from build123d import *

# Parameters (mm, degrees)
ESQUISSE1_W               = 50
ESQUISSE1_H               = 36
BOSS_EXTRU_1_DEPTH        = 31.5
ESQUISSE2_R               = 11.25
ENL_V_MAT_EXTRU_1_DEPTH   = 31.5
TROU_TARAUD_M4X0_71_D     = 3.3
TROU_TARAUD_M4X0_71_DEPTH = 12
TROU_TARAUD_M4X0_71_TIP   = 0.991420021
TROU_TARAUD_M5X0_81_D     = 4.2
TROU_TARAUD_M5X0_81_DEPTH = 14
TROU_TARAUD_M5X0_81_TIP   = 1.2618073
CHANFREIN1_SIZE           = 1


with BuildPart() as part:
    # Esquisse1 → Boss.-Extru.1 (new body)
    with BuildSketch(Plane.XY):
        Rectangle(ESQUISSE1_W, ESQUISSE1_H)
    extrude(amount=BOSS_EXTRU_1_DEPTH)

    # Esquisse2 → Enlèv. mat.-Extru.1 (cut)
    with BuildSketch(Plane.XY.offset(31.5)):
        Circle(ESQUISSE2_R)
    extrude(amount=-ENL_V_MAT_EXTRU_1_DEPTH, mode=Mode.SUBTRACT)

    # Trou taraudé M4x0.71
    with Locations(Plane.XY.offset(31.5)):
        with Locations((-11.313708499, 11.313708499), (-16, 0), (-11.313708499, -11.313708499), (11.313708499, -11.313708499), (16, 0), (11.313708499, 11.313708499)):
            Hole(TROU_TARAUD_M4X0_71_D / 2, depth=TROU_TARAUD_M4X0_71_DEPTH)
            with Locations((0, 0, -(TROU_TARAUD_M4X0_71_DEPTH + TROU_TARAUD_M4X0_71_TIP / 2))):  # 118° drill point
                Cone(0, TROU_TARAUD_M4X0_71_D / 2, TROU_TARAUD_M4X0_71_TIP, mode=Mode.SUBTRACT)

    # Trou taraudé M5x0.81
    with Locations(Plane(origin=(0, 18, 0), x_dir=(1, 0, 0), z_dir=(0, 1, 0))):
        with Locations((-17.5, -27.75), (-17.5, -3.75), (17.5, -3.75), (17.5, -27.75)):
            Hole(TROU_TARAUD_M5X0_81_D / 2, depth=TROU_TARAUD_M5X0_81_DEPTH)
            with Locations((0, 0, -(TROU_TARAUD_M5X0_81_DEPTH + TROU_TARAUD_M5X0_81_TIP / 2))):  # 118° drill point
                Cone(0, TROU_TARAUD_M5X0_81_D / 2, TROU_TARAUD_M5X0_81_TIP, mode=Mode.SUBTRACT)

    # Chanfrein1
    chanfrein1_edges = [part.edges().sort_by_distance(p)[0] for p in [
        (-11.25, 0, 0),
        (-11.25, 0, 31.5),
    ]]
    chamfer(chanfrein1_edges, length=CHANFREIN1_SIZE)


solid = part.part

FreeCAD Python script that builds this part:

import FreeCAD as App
import Part
import Sketcher
from FreeCAD import Vector
Q = App.Units.Quantity


def edges_at(feature, points):
    """Names of the edges that pass closest to the given points."""
    edges = feature.Shape.Edges
    near = lambda p: min(range(len(edges)), key=lambda i: edges[i].distToShape(Part.Vertex(*p))[0])
    return sorted({f"Edge{near(p) + 1}" for p in points})

doc = App.newDocument("Part")
body = doc.addObject("PartDesign::Body", "Body")

sketch1 = doc.addObject("Sketcher::SketchObject", "Sketch")
body.addObject(sketch1)
sketch1.AttachmentSupport = (doc.XY_Plane, [""])
sketch1.MapMode = "FlatFace"
sketch1.addGeometry(Part.LineSegment(Vector(-25, 18, 0), Vector(-25, -18, 0)), False)
sketch1.addGeometry(Part.LineSegment(Vector(-25, -18, 0), Vector(25, -18, 0)), False)
sketch1.addGeometry(Part.LineSegment(Vector(25, -18, 0), Vector(25, 18, 0)), False)
sketch1.addGeometry(Part.LineSegment(Vector(25, 18, 0), Vector(-25, 18, 0)), False)
sketch1.addConstraint(Sketcher.Constraint("Coincident", 0, 2, 1, 1))
sketch1.addConstraint(Sketcher.Constraint("Coincident", 1, 2, 2, 1))
sketch1.addConstraint(Sketcher.Constraint("Coincident", 2, 2, 3, 1))
sketch1.addConstraint(Sketcher.Constraint("Coincident", 3, 2, 0, 1))
sketch1.addConstraint(Sketcher.Constraint("Vertical", 0))
sketch1.addConstraint(Sketcher.Constraint("Horizontal", 1))
sketch1.addConstraint(Sketcher.Constraint("Vertical", 2))
sketch1.addConstraint(Sketcher.Constraint("Horizontal", 3))
sketch1.addConstraint(Sketcher.Constraint("Symmetric", 0, 2, 2, 2, -1, 1))
sketch1.addConstraint(Sketcher.Constraint("DistanceX", 1, 1, 1, 2, Q("50 mm")))
sketch1.addConstraint(Sketcher.Constraint("DistanceY", 0, 2, 0, 1, Q("36 mm")))
pad1 = doc.addObject("PartDesign::Pad", "Pad")
body.addObject(pad1)
pad1.Profile = sketch1
pad1.Length = 31.5

sketch2 = doc.addObject("Sketcher::SketchObject", "Sketch001")
body.addObject(sketch2)
sketch2.AttachmentSupport = (doc.XY_Plane, [""])
sketch2.MapMode = "FlatFace"
sketch2.AttachmentOffset = App.Placement(Vector(0, 0, 31.5), App.Rotation())
sketch2.addGeometry(Part.Circle(Vector(0, 0, 0), Vector(0, 0, 1), 11.25), False)
sketch2.addConstraint(Sketcher.Constraint("Coincident", 0, 3, -1, 1))
sketch2.addConstraint(Sketcher.Constraint("Diameter", 0, Q("22.5 mm")))
pocket1 = doc.addObject("PartDesign::Pocket", "Pocket")
body.addObject(pocket1)
pocket1.Profile = sketch2
pocket1.Length = 31.5

sketch3 = doc.addObject("Sketcher::SketchObject", "Sketch002")
body.addObject(sketch3)
sketch3.AttachmentSupport = (doc.XY_Plane, [""])
sketch3.MapMode = "FlatFace"
sketch3.AttachmentOffset = App.Placement(Vector(0, 0, 31.5), App.Rotation())
sketch3.addGeometry(Part.Circle(Vector(-11.313708, 11.313708, 0), Vector(0, 0, 1), 1.65), False)
sketch3.addGeometry(Part.Circle(Vector(-16, 0, 0), Vector(0, 0, 1), 1.65), False)
sketch3.addGeometry(Part.Circle(Vector(-11.313708, -11.313708, 0), Vector(0, 0, 1), 1.65), False)
sketch3.addGeometry(Part.Circle(Vector(11.313708, -11.313708, 0), Vector(0, 0, 1), 1.65), False)
sketch3.addGeometry(Part.Circle(Vector(16, 0, 0), Vector(0, 0, 1), 1.65), False)
sketch3.addGeometry(Part.Circle(Vector(11.313708, 11.313708, 0), Vector(0, 0, 1), 1.65), False)
sketch3.addConstraint(Sketcher.Constraint("Equal", 0, 1))
sketch3.addConstraint(Sketcher.Constraint("Equal", 1, 2))
sketch3.addConstraint(Sketcher.Constraint("Equal", 2, 3))
sketch3.addConstraint(Sketcher.Constraint("Equal", 3, 4))
sketch3.addConstraint(Sketcher.Constraint("Equal", 4, 5))
sketch3.addConstraint(Sketcher.Constraint("Symmetric", 0, 3, 3, 3, -1, 1))
sketch3.addConstraint(Sketcher.Constraint("Symmetric", 1, 3, 4, 3, -1, 1))
sketch3.addConstraint(Sketcher.Constraint("Symmetric", 2, 3, 5, 3, -1, 1))
sketch3.addConstraint(Sketcher.Constraint("Symmetric", 2, 3, 3, 3, -2))
sketch3.addConstraint(Sketcher.Constraint("PointOnObject", 1, 3, -1))
sketch3.addConstraint(Sketcher.Constraint("Diameter", 0, Q("3.3 mm")))
sketch3.addConstraint(Sketcher.Constraint("DistanceX", 1, 3, -1, 1, Q("16 mm")))
sketch3.addConstraint(Sketcher.Constraint("DistanceX", 0, 3, -1, 1, Q("11.313708 mm")))
sketch3.addConstraint(Sketcher.Constraint("DistanceY", -1, 1, 0, 3, Q("11.313708 mm")))
doc.recompute()
hole = doc.addObject("PartDesign::Hole", "Hole")
body.addObject(hole)
hole.Profile = sketch3
hole.ThreadType = "None"
hole.Diameter = 3.3
hole.DepthType = "Dimension"
hole.Depth = 12
hole.DrillPoint = "Angled"
hole.DrillPointAngle = 118

sketch4 = doc.addObject("Sketcher::SketchObject", "Sketch003")
body.addObject(sketch4)
sketch4.AttachmentSupport = (doc.XZ_Plane, [""])
sketch4.MapMode = "FlatFace"
sketch4.AttachmentOffset = App.Placement(Vector(0, 0, -18), App.Rotation())
sketch4.addGeometry(Part.Circle(Vector(-17.5, 27.75, 0), Vector(0, 0, 1), 2.1), False)
sketch4.addGeometry(Part.Circle(Vector(-17.5, 3.75, 0), Vector(0, 0, 1), 2.1), False)
sketch4.addGeometry(Part.Circle(Vector(17.5, 3.75, 0), Vector(0, 0, 1), 2.1), False)
sketch4.addGeometry(Part.Circle(Vector(17.5, 27.75, 0), Vector(0, 0, 1), 2.1), False)
sketch4.addConstraint(Sketcher.Constraint("Equal", 0, 1))
sketch4.addConstraint(Sketcher.Constraint("Equal", 1, 2))
sketch4.addConstraint(Sketcher.Constraint("Equal", 2, 3))
sketch4.addConstraint(Sketcher.Constraint("Symmetric", 1, 3, 2, 3, -2))
sketch4.addConstraint(Sketcher.Constraint("Symmetric", 0, 3, 3, 3, -2))
sketch4.addConstraint(Sketcher.Constraint("Vertical", 0, 3, 1, 3))
sketch4.addConstraint(Sketcher.Constraint("Diameter", 0, Q("4.2 mm")))
sketch4.addConstraint(Sketcher.Constraint("DistanceY", 1, 3, 0, 3, Q("24 mm")))
sketch4.addConstraint(Sketcher.Constraint("DistanceX", 1, 3, 2, 3, Q("35 mm")))
sketch4.addConstraint(Sketcher.Constraint("DistanceY", -1, 1, 0, 3, Q("27.75 mm")))
doc.recompute()
hole2 = doc.addObject("PartDesign::Hole", "Hole001")
body.addObject(hole2)
hole2.Profile = sketch4
hole2.ThreadType = "None"
hole2.Diameter = 4.2
hole2.DepthType = "Dimension"
hole2.Depth = 14
hole2.DrillPoint = "Angled"
hole2.DrillPointAngle = 118
hole2.Reversed = True
doc.recompute()

chamfer = doc.addObject("PartDesign::Chamfer", "Chamfer")
body.addObject(chamfer)
chamfer.Base = (hole2, edges_at(hole2, [(-11.25, 0, 0), (-11.25, 0, 31.5)]))
chamfer.Size = 1

doc.recompute()
